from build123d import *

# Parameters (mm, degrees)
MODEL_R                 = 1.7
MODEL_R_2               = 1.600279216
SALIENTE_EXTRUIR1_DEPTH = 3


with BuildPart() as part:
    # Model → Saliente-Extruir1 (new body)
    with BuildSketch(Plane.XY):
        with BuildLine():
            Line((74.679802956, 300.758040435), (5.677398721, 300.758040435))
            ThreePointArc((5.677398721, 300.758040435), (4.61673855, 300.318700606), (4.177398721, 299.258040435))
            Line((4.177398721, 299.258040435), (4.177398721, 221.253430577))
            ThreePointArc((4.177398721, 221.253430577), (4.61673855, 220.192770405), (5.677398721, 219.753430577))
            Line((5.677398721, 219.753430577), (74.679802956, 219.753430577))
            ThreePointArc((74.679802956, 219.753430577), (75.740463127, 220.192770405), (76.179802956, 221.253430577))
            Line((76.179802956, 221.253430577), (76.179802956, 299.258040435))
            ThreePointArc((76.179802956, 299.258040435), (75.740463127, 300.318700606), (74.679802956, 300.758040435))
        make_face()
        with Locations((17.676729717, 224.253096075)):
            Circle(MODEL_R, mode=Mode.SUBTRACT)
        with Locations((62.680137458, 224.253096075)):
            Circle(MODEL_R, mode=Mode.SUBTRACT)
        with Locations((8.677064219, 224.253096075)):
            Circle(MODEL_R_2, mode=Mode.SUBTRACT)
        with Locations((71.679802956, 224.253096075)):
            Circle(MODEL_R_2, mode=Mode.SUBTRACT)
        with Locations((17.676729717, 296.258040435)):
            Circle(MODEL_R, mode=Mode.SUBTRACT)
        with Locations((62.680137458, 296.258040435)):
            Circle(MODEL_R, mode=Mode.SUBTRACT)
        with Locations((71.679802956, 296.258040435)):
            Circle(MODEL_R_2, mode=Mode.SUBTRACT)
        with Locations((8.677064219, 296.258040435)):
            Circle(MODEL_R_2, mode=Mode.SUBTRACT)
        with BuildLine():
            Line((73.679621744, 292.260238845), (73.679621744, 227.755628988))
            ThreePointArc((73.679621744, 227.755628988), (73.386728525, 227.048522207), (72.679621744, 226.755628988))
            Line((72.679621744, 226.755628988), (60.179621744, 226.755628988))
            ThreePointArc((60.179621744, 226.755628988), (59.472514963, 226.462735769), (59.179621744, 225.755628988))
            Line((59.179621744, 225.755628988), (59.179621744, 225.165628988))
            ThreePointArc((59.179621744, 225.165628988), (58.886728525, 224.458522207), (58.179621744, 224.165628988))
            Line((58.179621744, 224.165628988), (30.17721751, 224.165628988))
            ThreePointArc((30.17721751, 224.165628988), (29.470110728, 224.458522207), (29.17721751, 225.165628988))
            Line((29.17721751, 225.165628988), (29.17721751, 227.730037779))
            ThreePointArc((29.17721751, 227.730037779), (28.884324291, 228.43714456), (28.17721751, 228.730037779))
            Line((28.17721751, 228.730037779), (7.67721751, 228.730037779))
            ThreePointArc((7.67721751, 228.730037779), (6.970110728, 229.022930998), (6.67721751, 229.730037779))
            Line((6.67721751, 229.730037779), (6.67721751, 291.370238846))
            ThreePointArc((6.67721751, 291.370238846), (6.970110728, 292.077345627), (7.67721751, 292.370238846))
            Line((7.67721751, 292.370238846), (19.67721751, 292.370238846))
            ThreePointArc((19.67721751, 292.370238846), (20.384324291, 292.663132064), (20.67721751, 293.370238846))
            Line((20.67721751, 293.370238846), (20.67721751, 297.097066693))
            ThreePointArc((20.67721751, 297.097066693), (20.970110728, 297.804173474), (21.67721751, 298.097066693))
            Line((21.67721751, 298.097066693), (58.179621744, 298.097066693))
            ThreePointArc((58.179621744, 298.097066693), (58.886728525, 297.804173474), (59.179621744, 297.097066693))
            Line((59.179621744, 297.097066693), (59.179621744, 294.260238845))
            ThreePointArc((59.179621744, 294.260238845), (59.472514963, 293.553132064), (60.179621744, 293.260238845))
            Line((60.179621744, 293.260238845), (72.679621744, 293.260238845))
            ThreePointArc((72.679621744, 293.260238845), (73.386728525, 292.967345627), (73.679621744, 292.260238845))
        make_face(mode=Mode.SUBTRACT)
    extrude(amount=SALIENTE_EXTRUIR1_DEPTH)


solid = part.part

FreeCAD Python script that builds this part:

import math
import FreeCAD as App
import Part
import Sketcher

doc = App.newDocument("Part")
body = doc.addObject("PartDesign::Body", "Body")

sketch1 = body.newObject("Sketcher::SketchObject", "Sketch")
sketch1.AttachmentSupport = (doc.getObject("XY_Plane"), [""])
sketch1.MapMode = "FlatFace"
sketch1.addGeometry([
    Part.LineSegment(App.Vector(74.679803, 300.75804, 0), App.Vector(5.677399, 300.75804, 0)),
    Part.ArcOfCircle(Part.Circle(App.Vector(5.677399, 299.25804, 0), App.Vector(0, 0, 1), 1.5), math.radians(90), math.radians(180)),
    Part.LineSegment(App.Vector(4.177399, 299.25804, 0), App.Vector(4.177399, 221.253431, 0)),
    Part.ArcOfCircle(Part.Circle(App.Vector(5.677399, 221.253431, 0), App.Vector(0, 0, 1), 1.5), math.radians(-180), math.radians(-90)),
    Part.LineSegment(App.Vector(5.677399, 219.753431, 0), App.Vector(74.679803, 219.753431, 0)),
    Part.ArcOfCircle(Part.Circle(App.Vector(74.679803, 221.253431, 0), App.Vector(0, 0, 1), 1.5), math.radians(-90), math.radians(0)),
    Part.LineSegment(App.Vector(76.179803, 221.253431, 0), App.Vector(76.179803, 299.25804, 0)),
    Part.ArcOfCircle(Part.Circle(App.Vector(74.679803, 299.25804, 0), App.Vector(0, 0, 1), 1.5), math.radians(0), math.radians(90)),
    Part.Circle(App.Vector(8.677064, 224.253096, 0), App.Vector(0, 0, 1), 1.600279),
    Part.Circle(App.Vector(17.67673, 224.253096, 0), App.Vector(0, 0, 1), 1.7),
    Part.Circle(App.Vector(62.680137, 224.253096, 0), App.Vector(0, 0, 1), 1.7),
    Part.Circle(App.Vector(71.679803, 224.253096, 0), App.Vector(0, 0, 1), 1.600279),
    Part.Circle(App.Vector(8.677064, 296.25804, 0), App.Vector(0, 0, 1), 1.600279),
    Part.Circle(App.Vector(17.67673, 296.25804, 0), App.Vector(0, 0, 1), 1.7),
    Part.ArcOfCircle(Part.Circle(App.Vector(72.679622, 292.260239, 0), App.Vector(0, 0, 1), 1), math.radians(0), math.radians(90)),
    Part.LineSegment(App.Vector(73.679622, 292.260239, 0), App.Vector(73.679622, 227.755629, 0)),
    Part.ArcOfCircle(Part.Circle(App.Vector(72.679622, 227.755629, 0), App.Vector(0, 0, 1), 1), math.radians(-90), math.radians(0)),
    Part.LineSegment(App.Vector(72.679622, 226.755629, 0), App.Vector(60.179622, 226.755629, 0)),
    Part.ArcOfCircle(Part.Circle(App.Vector(60.179622, 225.755629, 0), App.Vector(0, 0, 1), 1), math.radians(90), math.radians(180)),
    Part.LineSegment(App.Vector(59.179622, 225.755629, 0), App.Vector(59.179622, 225.165629, 0)),
    Part.ArcOfCircle(Part.Circle(App.Vector(58.179622, 225.165629, 0), App.Vector(0, 0, 1), 1), math.radians(-90), math.radians(0)),
    Part.LineSegment(App.Vector(58.179622, 224.165629, 0), App.Vector(30.177218, 224.165629, 0)),
    Part.ArcOfCircle(Part.Circle(App.Vector(30.177218, 225.165629, 0), App.Vector(0, 0, 1), 1), math.radians(180), math.radians(270)),
    Part.LineSegment(App.Vector(29.177218, 225.165629, 0), App.Vector(29.177218, 227.730038, 0)),
    Part.ArcOfCircle(Part.Circle(App.Vector(28.177218, 227.730038, 0), App.Vector(0, 0, 1), 1), math.radians(0), math.radians(90)),
    Part.LineSegment(App.Vector(28.177218, 228.730038, 0), App.Vector(7.677218, 228.730038, 0)),
    Part.ArcOfCircle(Part.Circle(App.Vector(7.677218, 229.730038, 0), App.Vector(0, 0, 1), 1), math.radians(180), math.radians(270)),
    Part.LineSegment(App.Vector(6.677218, 229.730038, 0), App.Vector(6.677218, 291.370239, 0)),
    Part.ArcOfCircle(Part.Circle(App.Vector(7.677218, 291.370239, 0), App.Vector(0, 0, 1), 1), math.radians(90), math.radians(180)),
    Part.LineSegment(App.Vector(7.677218, 292.370239, 0), App.Vector(19.677218, 292.370239, 0)),
    Part.ArcOfCircle(Part.Circle(App.Vector(19.677218, 293.370239, 0), App.Vector(0, 0, 1), 1), math.radians(-90), math.radians(0)),
    Part.LineSegment(App.Vector(20.677218, 293.370239, 0), App.Vector(20.677218, 297.097067, 0)),
    Part.ArcOfCircle(Part.Circle(App.Vector(21.677218, 297.097067, 0), App.Vector(0, 0, 1), 1), math.radians(90), math.radians(180)),
    Part.LineSegment(App.Vector(21.677218, 298.097067, 0), App.Vector(58.179622, 298.097067, 0)),
    Part.ArcOfCircle(Part.Circle(App.Vector(58.179622, 297.097067, 0), App.Vector(0, 0, 1), 1), math.radians(0), math.radians(90)),
    Part.LineSegment(App.Vector(59.179622, 297.097067, 0), App.Vector(59.179622, 294.260239, 0)),
    Part.ArcOfCircle(Part.Circle(App.Vector(60.179622, 294.260239, 0), App.Vector(0, 0, 1), 1), math.radians(-180), math.radians(-90)),
    Part.LineSegment(App.Vector(60.179622, 293.260239, 0), App.Vector(72.679622, 293.260239, 0)),
    Part.Circle(App.Vector(62.680137, 296.25804, 0), App.Vector(0, 0, 1), 1.7),
    Part.Circle(App.Vector(71.679803, 296.25804, 0), App.Vector(0, 0, 1), 1.600279),
], False)
sketch1.addConstraint([
    Sketcher.Constraint("Tangent", 0, 2, 1, 1),
    Sketcher.Constraint("Tangent", 1, 2, 2, 1),
    Sketcher.Constraint("Tangent", 2, 2, 3, 1),
    Sketcher.Constraint("Tangent", 3, 2, 4, 1),
    Sketcher.Constraint("Tangent", 4, 2, 5, 1),
    Sketcher.Constraint("Tangent", 5, 2, 6, 1),
    Sketcher.Constraint("Tangent", 6, 2, 7, 1),
    Sketcher.Constraint("Tangent", 7, 2, 0, 1),
    Sketcher.Constraint("Tangent", 14, 1, 15, 1),
    Sketcher.Constraint("Tangent", 15, 2, 16, 2),
    Sketcher.Constraint("Tangent", 16, 1, 17, 1),
    Sketcher.Constraint("Tangent", 17, 2, 18, 1),
    Sketcher.Constraint("Tangent", 18, 2, 19, 1),
    Sketcher.Constraint("Tangent", 19, 2, 20, 2),
    Sketcher.Constraint("Tangent", 20, 1, 21, 1),
    Sketcher.Constraint("Tangent", 21, 2, 22, 2),
    Sketcher.Constraint("Tangent", 22, 1, 23, 1),
    Sketcher.Constraint("Tangent", 23, 2, 24, 1),
    Sketcher.Constraint("Tangent", 24, 2, 25, 1),
    Sketcher.Constraint("Tangent", 25, 2, 26, 2),
    Sketcher.Constraint("Tangent", 26, 1, 27, 1),
    Sketcher.Constraint("Tangent", 27, 2, 28, 2),
    Sketcher.Constraint("Tangent", 28, 1, 29, 1),
    Sketcher.Constraint("Tangent", 29, 2, 30, 1),
    Sketcher.Constraint("Tangent", 30, 2, 31, 1),
    Sketcher.Constraint("Tangent", 31, 2, 32, 2),
    Sketcher.Constraint("Tangent", 32, 1, 33, 1),
    Sketcher.Constraint("Tangent", 33, 2, 34, 2),
    Sketcher.Constraint("Tangent", 34, 1, 35, 1),
    Sketcher.Constraint("Tangent", 35, 2, 36, 1),
    Sketcher.Constraint("Tangent", 36, 2, 37, 1),
    Sketcher.Constraint("Tangent", 37, 2, 14, 2),
    Sketcher.Constraint("Horizontal", 0),
    Sketcher.Constraint("Vertical", 2),
    Sketcher.Constraint("Horizontal", 4),
    Sketcher.Constraint("Vertical", 6),
    Sketcher.Constraint("Vertical", 15),
    Sketcher.Constraint("Horizontal", 17),
    Sketcher.Constraint("Vertical", 19),
    Sketcher.Constraint("Horizontal", 21),
    Sketcher.Constraint("Vertical", 23),
    Sketcher.Constraint("Horizontal", 25),
    Sketcher.Constraint("Vertical", 27),
    Sketcher.Constraint("Horizontal", 29),
    Sketcher.Constraint("Vertical", 31),
    Sketcher.Constraint("Horizontal", 33),
    Sketcher.Constraint("Vertical", 35),
    Sketcher.Constraint("Horizontal", 37),
    Sketcher.Constraint("Equal", 1, 3),
    Sketcher.Constraint("Equal", 3, 5),
    Sketcher.Constraint("Equal", 5, 7),
    Sketcher.Constraint("Equal", 9, 10),
    Sketcher.Constraint("Equal", 8, 11),
    Sketcher.Constraint("Equal", 11, 12),
    Sketcher.Constraint("Equal", 10, 13),
    Sketcher.Constraint("Equal", 14, 16),
    Sketcher.Constraint("Equal", 16, 18),
    Sketcher.Constraint("Equal", 18, 20),
    Sketcher.Constraint("Equal", 20, 22),
    Sketcher.Constraint("Equal", 22, 24),
    Sketcher.Constraint("Equal", 24, 26),
    Sketcher.Constraint("Equal", 26, 28),
    Sketcher.Constraint("Equal", 28, 30),
    Sketcher.Constraint("Equal", 30, 32),
    Sketcher.Constraint("Equal", 32, 34),
    Sketcher.Constraint("Equal", 34, 36),
    Sketcher.Constraint("Equal", 13, 38),
    Sketcher.Constraint("Equal", 12, 39),
    Sketcher.Constraint("Horizontal", 8, 3, 9, 3),
    Sketcher.Constraint("Horizontal", 9, 3, 10, 3),
    Sketcher.Constraint("Horizontal", 10, 3, 11, 3),
    Sketcher.Constraint("Horizontal", 12, 3, 13, 3),
    Sketcher.Constraint("Horizontal", 13, 3, 38, 3),
    Sketcher.Constraint("Horizontal", 38, 3, 39, 3),
    Sketcher.Constraint("Vertical", 8, 3, 12, 3),
    Sketcher.Constraint("Vertical", 9, 3, 13, 3),
    Sketcher.Constraint("Vertical", 20, 3, 34, 3),
    Sketcher.Constraint("Vertical", 10, 3, 38, 3),
    Sketcher.Constraint("Vertical", 11, 3, 39, 3),
    Sketcher.Constraint("Radius", 14, 1.0),
    Sketcher.Constraint("Diameter", 9, 3.4),
    Sketcher.Constraint("Radius", 1, 1.5),
    Sketcher.Constraint("DistanceX", 29, 1, 29, 2, 12.0),
    Sketcher.Constraint("DistanceX", 17, 2, 17, 1, 12.5),
    Sketcher.Constraint("DistanceX", 25, 2, 25, 1, 20.5),
    Sketcher.Constraint("DistanceX", 11, 3, 5, 3, 3.0),
    Sketcher.Constraint("DistanceY", 12, 3, 1, 3, 3.0),
    Sketcher.Constraint("DistanceY", 19, 2, 19, 1, 0.59),
    Sketcher.Constraint("Diameter", 8, 3.200558),
    Sketcher.Constraint("DistanceY", 28, 3, 14, 3, 0.89),
    Sketcher.Constraint("DistanceY", 27, 1, 27, 2, 61.640201),
    Sketcher.Constraint("DistanceY", 2, 2, 2, 1, 78.00461),
    Sketcher.Constraint("DistanceY", 15, 2, 15, 1, 64.50461),
    Sketcher.Constraint("DistanceX", -1, 1, 1, 3, 5.677399),
    Sketcher.Constraint("DistanceY", 14, 3, 7, 3, 6.997802),
    Sketcher.Constraint("DistanceX", 0, 2, 0, 1, 69.002404),
    Sketcher.Constraint("DistanceX", 21, 2, 21, 1, 28.002404),
    Sketcher.Constraint("DistanceY", 31, 1, 31, 2, 3.726828),
    Sketcher.Constraint("DistanceY", -1, 1, 1, 3, 299.25804),
    Sketcher.Constraint("DistanceX", -1, 1, 9, 3, 17.67673),
    Sketcher.Constraint("DistanceX", -1, 1, 14, 3, 72.679622),
    Sketcher.Constraint("DistanceX", 8, 3, 5, 3, 66.002739),
    Sketcher.Constraint("DistanceX", 3, 3, 10, 3, 57.002739),
    Sketcher.Constraint("DistanceY", 9, 3, 24, 3, 3.476942),
])
pad1 = body.newObject("PartDesign::Pad", "Pad")
pad1.Profile = sketch1
pad1.Length = 3

doc.recompute()
